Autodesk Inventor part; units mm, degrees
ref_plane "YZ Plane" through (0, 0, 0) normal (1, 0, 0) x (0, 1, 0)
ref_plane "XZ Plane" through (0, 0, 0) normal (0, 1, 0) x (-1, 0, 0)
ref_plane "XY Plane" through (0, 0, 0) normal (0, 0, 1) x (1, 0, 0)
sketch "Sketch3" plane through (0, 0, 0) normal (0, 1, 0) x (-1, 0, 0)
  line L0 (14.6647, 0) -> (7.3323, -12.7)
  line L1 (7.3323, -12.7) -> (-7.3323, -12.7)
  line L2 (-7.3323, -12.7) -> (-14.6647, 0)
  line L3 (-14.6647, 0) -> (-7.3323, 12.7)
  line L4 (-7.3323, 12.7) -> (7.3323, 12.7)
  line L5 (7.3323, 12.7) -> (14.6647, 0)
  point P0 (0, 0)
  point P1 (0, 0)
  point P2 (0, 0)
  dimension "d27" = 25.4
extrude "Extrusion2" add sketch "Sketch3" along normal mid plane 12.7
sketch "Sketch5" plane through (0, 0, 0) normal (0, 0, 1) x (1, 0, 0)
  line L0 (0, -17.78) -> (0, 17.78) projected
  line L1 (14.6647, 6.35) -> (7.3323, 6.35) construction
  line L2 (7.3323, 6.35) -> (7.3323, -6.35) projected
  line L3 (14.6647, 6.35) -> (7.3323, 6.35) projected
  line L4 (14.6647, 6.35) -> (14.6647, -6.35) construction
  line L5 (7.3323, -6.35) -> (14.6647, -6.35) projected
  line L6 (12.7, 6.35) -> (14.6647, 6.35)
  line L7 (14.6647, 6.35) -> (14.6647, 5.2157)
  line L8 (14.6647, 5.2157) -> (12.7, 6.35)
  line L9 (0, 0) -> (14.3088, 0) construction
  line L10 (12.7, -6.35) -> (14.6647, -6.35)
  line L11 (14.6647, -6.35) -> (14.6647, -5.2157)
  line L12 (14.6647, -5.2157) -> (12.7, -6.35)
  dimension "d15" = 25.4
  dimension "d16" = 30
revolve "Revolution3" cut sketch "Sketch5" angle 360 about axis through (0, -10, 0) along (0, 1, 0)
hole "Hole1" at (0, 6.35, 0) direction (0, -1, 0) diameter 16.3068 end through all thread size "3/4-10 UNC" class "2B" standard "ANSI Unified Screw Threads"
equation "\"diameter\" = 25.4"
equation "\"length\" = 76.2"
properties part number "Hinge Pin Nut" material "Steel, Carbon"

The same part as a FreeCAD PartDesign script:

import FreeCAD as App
import Part
import Sketcher
Q = App.Units.Quantity

doc = App.newDocument("Part")
body = doc.addObject("PartDesign::Body", "Body")

# Sketch on XZ plane
sketch1 = doc.addObject("Sketcher::SketchObject", "Sketch")
body.addObject(sketch1)
sketch1.AttachmentSupport = (doc.XZ_Plane, [""])
sketch1.MapMode = "FlatFace"
sketch1.addGeometry([
    Part.LineSegment(App.Vector(-7, -13, 0), App.Vector(-15, 0, 0)),  # 0
    Part.LineSegment(App.Vector(-15, 0, 0), App.Vector(-7, 13, 0)),  # 1
    Part.LineSegment(App.Vector(-7, 13, 0), App.Vector(7, 13, 0)),  # 2
    Part.LineSegment(App.Vector(7, 13, 0), App.Vector(15, 0, 0)),  # 3
    Part.LineSegment(App.Vector(15, 0, 0), App.Vector(7, -13, 0)),  # 4
    Part.LineSegment(App.Vector(7, -13, 0), App.Vector(-7, -13, 0)),  # 5
], False)
sketch1.addConstraint([
    Sketcher.Constraint("Coincident", 0, 2, 1, 1),
    Sketcher.Constraint("Coincident", 1, 2, 2, 1),
    Sketcher.Constraint("Coincident", 2, 2, 3, 1),
    Sketcher.Constraint("Coincident", 3, 2, 4, 1),
    Sketcher.Constraint("Coincident", 4, 2, 5, 1),
    Sketcher.Constraint("Coincident", 5, 2, 0, 1),
    Sketcher.Constraint("Horizontal", 2),
    Sketcher.Constraint("Horizontal", 5),
    Sketcher.Constraint("Symmetric", 0, 2, 3, 2, -1, 1),
    Sketcher.Constraint("Symmetric", 1, 2, 4, 2, -1, 1),
    Sketcher.Constraint("PointOnObject", 0, 2, -1),
    Sketcher.Constraint("Parallel", 0, 3),
    Sketcher.Constraint("Vertical", 2, 2, 4, 2),
    Sketcher.Constraint("DistanceY", 4, 2, 2, 2, Q("1 in")),
    Sketcher.Constraint("Angle", 0, Q("120.0002 deg")),
    Sketcher.Constraint("DistanceX", 2, 1, 2, 2, 14.6646),
])
pad1 = doc.addObject("PartDesign::Pad", "Pad")
body.addObject(pad1)
pad1.Profile = sketch1
pad1.Length = Q("0.5 in")
pad1.Midplane = True

# Sketch on XY plane
sketch2 = doc.addObject("Sketcher::SketchObject", "Sketch001")
body.addObject(sketch2)
sketch2.AttachmentSupport = (doc.XY_Plane, [""])
sketch2.MapMode = "FlatFace"
sketch2.addGeometry([
    Part.LineSegment(App.Vector(14.7, -5.2, 0), App.Vector(12.7, -6.3, 0)),  # 0
    Part.LineSegment(App.Vector(12.7, -6.3, 0), App.Vector(14.7, -6.3, 0)),  # 1
    Part.LineSegment(App.Vector(14.7, -6.3, 0), App.Vector(14.7, -5.2, 0)),  # 2
    Part.LineSegment(App.Vector(14.7, 6.3, 0), App.Vector(12.7, 6.3, 0)),  # 3
    Part.LineSegment(App.Vector(12.7, 6.3, 0), App.Vector(14.7, 5.2, 0)),  # 4
    Part.LineSegment(App.Vector(14.7, 5.2, 0), App.Vector(14.7, 6.3, 0)),  # 5
], False)
sketch2.addConstraint([
    Sketcher.Constraint("Coincident", 0, 2, 1, 1),
    Sketcher.Constraint("Coincident", 1, 2, 2, 1),
    Sketcher.Constraint("Coincident", 2, 2, 0, 1),
    Sketcher.Constraint("Coincident", 3, 2, 4, 1),
    Sketcher.Constraint("Coincident", 4, 2, 5, 1),
    Sketcher.Constraint("Coincident", 5, 2, 3, 1),
    Sketcher.Constraint("Horizontal", 1),
    Sketcher.Constraint("Vertical", 2),
    Sketcher.Constraint("Horizontal", 3),
    Sketcher.Constraint("Vertical", 5),
    Sketcher.Constraint("Symmetric", 0, 2, 3, 2, -1),
    Sketcher.Constraint("Symmetric", 2, 2, 4, 2, -1),
    Sketcher.Constraint("Angle", 4, Q("-29.9996 deg")),
    Sketcher.Constraint("DistanceX", -1, 1, 0, 2, Q("0.5 in")),
    Sketcher.Constraint("DistanceY", 0, 2, 3, 2, Q("0.5 in")),
    Sketcher.Constraint("DistanceX", 1, 1, 1, 2, 1.9647),
])
groove = doc.addObject("PartDesign::Groove", "Groove")
body.addObject(groove)
groove.Profile = sketch2
groove.ReferenceAxis = (sketch2, ["V_Axis"])
groove.Angle = 360

# Sketch on XZ plane
sketch3 = doc.addObject("Sketcher::SketchObject", "Sketch002")
body.addObject(sketch3)
sketch3.AttachmentSupport = (doc.XZ_Plane, [""])
sketch3.MapMode = "FlatFace"
sketch3.AttachmentOffset = App.Placement(App.Vector(0, 0, -0.25 * 25.4), App.Rotation())
sketch3.addGeometry(Part.Circle(App.Vector(0, 0, 0), App.Vector(0, 0, 1), 8), False)
sketch3.addConstraint([
    Sketcher.Constraint("Coincident", 0, 3, -1, 1),
    Sketcher.Constraint("Diameter", 0, Q("0.642 in")),
])
doc.recompute()
hole = doc.addObject("PartDesign::Hole", "Hole")
body.addObject(hole)
hole.Profile = sketch3
hole.ThreadType = "None"
hole.Diameter = Q("0.642 in")
hole.DepthType = "ThroughAll"
hole.Reversed = True

doc.recompute()
